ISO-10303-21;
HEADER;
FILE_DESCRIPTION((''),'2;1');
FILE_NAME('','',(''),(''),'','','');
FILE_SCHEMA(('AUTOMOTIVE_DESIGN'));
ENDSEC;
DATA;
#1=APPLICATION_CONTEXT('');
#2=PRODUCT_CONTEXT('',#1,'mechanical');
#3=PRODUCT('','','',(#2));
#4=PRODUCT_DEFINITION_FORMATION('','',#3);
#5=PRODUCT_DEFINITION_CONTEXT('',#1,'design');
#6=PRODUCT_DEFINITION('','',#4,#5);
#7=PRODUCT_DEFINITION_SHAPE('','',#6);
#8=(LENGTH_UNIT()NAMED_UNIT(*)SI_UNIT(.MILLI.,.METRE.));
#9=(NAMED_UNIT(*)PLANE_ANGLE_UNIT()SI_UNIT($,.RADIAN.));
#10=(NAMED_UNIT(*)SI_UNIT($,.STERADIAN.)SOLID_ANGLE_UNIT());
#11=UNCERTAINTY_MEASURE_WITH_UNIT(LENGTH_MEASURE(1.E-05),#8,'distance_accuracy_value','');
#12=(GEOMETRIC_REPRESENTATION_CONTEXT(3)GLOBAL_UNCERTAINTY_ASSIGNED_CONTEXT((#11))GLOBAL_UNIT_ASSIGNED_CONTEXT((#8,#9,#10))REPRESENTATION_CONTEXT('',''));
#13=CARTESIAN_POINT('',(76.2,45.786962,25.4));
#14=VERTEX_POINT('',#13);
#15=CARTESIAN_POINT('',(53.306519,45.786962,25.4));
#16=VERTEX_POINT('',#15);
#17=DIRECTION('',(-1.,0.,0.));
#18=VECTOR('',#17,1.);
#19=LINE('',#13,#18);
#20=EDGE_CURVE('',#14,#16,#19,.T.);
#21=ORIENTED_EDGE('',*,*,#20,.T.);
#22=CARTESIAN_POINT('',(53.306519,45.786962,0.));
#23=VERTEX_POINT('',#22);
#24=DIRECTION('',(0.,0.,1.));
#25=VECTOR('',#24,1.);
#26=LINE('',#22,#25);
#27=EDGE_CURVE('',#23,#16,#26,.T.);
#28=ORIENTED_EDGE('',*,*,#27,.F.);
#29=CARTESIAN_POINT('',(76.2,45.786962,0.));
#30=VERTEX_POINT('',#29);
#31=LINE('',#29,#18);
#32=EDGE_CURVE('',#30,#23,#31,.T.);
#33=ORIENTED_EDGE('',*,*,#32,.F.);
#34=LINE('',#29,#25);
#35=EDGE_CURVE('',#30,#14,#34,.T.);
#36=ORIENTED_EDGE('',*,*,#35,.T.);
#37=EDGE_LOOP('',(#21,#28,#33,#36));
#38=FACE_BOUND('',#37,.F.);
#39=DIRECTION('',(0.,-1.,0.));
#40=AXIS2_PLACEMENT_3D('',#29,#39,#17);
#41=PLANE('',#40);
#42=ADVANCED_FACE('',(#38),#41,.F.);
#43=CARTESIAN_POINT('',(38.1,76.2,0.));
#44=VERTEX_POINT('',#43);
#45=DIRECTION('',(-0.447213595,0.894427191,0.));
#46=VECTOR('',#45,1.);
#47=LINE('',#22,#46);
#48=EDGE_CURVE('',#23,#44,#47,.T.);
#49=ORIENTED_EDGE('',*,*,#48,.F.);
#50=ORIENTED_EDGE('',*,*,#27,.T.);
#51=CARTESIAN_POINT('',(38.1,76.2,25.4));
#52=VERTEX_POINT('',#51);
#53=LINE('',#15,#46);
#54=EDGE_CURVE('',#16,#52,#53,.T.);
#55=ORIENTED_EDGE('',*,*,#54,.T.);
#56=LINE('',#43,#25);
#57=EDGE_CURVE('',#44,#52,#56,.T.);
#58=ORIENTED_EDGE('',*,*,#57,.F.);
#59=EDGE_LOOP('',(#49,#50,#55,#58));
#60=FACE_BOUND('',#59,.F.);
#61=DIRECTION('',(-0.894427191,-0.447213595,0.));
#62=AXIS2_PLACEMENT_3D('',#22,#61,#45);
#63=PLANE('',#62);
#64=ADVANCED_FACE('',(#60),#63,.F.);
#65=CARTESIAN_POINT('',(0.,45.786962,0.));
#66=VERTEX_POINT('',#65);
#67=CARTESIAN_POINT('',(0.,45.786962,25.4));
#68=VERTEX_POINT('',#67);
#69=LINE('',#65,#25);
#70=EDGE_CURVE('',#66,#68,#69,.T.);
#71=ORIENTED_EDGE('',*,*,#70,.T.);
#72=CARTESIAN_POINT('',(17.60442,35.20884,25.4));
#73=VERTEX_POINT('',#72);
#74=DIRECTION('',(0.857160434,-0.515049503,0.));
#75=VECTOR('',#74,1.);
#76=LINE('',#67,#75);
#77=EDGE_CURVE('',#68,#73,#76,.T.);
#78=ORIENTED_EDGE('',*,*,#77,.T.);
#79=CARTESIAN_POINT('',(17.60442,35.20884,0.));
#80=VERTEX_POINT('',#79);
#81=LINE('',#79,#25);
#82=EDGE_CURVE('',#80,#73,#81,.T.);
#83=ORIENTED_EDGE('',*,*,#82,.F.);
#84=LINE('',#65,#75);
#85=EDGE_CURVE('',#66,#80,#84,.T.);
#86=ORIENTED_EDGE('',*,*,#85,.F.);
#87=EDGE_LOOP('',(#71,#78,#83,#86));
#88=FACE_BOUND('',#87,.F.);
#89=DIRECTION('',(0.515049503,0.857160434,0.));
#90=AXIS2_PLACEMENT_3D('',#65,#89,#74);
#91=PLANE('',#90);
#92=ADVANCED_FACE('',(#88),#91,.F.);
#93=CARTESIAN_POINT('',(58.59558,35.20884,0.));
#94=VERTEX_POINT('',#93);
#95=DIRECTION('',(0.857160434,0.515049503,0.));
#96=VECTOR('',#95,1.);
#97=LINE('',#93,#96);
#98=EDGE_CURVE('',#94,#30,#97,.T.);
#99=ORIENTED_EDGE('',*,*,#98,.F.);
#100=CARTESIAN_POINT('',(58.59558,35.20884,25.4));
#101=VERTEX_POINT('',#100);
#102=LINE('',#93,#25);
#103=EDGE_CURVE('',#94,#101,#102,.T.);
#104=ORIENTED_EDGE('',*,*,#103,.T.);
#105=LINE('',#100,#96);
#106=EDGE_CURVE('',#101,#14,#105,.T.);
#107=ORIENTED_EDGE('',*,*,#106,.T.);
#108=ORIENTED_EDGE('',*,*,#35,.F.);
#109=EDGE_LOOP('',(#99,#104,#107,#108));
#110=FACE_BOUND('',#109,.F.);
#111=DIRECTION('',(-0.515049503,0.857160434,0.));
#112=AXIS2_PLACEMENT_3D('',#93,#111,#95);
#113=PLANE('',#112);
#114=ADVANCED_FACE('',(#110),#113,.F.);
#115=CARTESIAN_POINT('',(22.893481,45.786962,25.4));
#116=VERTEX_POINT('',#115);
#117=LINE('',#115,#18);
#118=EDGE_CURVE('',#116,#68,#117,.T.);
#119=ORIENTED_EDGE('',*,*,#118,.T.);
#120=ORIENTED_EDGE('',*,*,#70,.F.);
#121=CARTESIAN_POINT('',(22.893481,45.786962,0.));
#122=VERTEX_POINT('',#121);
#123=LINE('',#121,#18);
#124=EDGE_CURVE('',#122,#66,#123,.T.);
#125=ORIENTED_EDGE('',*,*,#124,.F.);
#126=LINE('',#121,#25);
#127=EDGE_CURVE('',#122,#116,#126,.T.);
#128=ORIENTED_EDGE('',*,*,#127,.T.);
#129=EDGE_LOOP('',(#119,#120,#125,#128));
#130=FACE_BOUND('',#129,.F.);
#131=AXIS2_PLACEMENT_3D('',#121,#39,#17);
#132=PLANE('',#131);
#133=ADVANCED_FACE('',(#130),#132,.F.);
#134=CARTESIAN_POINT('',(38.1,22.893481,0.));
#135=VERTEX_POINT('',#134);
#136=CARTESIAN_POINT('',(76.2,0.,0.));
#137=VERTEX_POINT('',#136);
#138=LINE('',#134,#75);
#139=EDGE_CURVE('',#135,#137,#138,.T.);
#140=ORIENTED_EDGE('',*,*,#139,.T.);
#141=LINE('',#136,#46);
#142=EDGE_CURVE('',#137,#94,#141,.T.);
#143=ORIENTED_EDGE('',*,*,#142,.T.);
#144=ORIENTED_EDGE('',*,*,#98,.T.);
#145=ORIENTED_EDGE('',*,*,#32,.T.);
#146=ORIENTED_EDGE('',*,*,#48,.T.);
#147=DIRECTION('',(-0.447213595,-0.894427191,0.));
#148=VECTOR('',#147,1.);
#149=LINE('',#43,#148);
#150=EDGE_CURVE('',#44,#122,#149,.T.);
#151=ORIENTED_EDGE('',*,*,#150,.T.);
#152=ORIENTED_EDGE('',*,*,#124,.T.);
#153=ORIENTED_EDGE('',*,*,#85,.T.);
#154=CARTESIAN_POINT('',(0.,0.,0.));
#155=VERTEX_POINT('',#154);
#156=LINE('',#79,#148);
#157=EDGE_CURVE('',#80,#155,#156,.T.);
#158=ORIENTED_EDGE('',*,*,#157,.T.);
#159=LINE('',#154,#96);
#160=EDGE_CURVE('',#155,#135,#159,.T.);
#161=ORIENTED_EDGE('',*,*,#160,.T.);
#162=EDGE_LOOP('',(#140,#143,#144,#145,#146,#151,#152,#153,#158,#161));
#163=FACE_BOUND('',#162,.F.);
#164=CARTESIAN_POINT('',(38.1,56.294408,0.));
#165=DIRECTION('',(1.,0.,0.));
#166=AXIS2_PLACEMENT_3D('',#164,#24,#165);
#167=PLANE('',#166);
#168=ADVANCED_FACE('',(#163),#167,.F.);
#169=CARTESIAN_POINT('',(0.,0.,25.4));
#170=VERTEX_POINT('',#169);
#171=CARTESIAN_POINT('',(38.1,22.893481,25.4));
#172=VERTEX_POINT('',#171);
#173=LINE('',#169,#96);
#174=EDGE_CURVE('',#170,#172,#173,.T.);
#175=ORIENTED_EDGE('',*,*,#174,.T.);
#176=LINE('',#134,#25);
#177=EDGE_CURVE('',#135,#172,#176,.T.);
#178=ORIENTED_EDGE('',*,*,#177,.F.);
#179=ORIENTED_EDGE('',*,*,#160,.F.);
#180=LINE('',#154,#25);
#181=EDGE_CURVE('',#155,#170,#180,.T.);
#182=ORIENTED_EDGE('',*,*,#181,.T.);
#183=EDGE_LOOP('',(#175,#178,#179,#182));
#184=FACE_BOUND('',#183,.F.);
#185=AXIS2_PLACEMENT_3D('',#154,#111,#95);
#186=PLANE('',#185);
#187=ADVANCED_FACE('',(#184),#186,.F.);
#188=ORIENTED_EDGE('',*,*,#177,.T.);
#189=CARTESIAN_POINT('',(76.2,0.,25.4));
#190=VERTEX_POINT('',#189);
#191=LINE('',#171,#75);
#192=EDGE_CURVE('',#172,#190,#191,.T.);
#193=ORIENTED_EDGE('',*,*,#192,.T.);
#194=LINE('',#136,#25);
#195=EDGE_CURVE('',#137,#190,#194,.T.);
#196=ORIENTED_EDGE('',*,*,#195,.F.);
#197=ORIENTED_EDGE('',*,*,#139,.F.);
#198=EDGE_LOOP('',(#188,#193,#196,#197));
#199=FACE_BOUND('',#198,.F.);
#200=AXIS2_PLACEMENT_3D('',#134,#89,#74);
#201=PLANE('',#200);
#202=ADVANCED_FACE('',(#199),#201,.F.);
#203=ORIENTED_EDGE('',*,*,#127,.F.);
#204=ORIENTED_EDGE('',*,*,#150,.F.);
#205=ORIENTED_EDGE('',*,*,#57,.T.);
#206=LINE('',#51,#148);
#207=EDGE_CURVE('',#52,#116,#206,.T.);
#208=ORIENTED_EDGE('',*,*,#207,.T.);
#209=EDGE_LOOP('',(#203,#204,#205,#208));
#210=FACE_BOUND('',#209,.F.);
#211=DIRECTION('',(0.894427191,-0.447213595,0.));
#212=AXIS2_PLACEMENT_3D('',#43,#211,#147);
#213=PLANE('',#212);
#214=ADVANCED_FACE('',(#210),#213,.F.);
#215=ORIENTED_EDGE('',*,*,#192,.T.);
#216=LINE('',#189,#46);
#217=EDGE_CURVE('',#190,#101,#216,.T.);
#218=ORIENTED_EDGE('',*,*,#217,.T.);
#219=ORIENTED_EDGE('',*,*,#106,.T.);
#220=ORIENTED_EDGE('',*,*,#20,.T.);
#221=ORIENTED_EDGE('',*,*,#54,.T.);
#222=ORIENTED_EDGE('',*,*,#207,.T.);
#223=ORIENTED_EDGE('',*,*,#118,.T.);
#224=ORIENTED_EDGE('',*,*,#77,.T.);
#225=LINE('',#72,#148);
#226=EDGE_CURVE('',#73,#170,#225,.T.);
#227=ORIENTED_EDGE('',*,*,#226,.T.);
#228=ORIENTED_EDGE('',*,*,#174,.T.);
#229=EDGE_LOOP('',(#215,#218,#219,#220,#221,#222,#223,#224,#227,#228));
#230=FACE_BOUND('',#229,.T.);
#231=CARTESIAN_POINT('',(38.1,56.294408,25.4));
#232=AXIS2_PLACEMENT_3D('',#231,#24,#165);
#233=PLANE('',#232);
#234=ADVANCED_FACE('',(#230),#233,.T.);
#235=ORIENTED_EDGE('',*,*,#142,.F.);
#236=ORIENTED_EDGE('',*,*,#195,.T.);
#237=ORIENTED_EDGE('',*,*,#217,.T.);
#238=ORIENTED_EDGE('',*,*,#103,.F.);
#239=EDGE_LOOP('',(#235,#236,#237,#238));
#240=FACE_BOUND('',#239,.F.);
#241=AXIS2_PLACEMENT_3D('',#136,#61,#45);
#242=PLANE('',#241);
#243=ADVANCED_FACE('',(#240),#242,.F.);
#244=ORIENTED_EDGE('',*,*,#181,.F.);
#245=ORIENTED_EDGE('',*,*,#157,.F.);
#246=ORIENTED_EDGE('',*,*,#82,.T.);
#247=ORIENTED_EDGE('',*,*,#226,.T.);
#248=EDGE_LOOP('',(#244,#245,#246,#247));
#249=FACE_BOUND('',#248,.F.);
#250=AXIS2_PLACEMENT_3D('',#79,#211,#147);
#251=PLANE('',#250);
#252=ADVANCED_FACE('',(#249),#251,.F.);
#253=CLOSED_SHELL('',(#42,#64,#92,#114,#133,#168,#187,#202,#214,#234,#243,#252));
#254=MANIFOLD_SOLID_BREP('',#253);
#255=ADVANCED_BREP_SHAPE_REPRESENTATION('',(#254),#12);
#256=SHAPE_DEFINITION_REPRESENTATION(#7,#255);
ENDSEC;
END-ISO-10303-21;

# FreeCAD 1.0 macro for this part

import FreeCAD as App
import Part
import Sketcher

V = App.Vector
Q = App.Units.Quantity


def add_polygon(sketch, points):
    """Adds a closed chain of lines whose ends are joined by coincident constraints."""
    first, n = sketch.GeometryCount, len(points)
    for a, b in zip(points, points[1:] + points[:1]):
        sketch.addGeometry(Part.LineSegment(App.Vector(*a, 0), App.Vector(*b, 0)), False)
    for i in range(n):
        sketch.addConstraint(Sketcher.Constraint("Coincident", first + i, 2, first + (i + 1) % n, 1))

doc = App.newDocument("Part")
body = doc.addObject("PartDesign::Body", "Body")

sketch1 = body.newObject("Sketcher::SketchObject", "Sketch")
sketch1.AttachmentSupport = (doc.getObject("XY_Plane"), [""])
sketch1.MapMode = "FlatFace"
add_polygon(sketch1, [(38, 76), (23, 46), (0, 46), (18, 35), (0, 0), (38, 23), (76, 0), (59, 35), (76, 46), (53, 46)])
sketch1.addConstraint(Sketcher.Constraint("Horizontal", 1))
sketch1.addConstraint(Sketcher.Constraint("Horizontal", 8))
sketch1.addConstraint(Sketcher.Constraint("Coincident", 3, 2, -1, 1))
sketch1.addConstraint(Sketcher.Constraint("PointOnObject", 1, 2, -2))
sketch1.addConstraint(Sketcher.Constraint("PointOnObject", 5, 2, -1))
sketch1.addConstraint(Sketcher.Constraint("Parallel", 0, 3))
sketch1.addConstraint(Sketcher.Constraint("Parallel", 2, 5))
sketch1.addConstraint(Sketcher.Constraint("Parallel", 4, 7))
sketch1.addConstraint(Sketcher.Constraint("Parallel", 6, 9))
sketch1.addConstraint(Sketcher.Constraint("Horizontal", 2, 2, 6, 2))
sketch1.addConstraint(Sketcher.Constraint("Horizontal", 1, 2, 7, 2))
sketch1.addConstraint(Sketcher.Constraint("Vertical", 5, 2, 7, 2))
sketch1.addConstraint(Sketcher.Constraint("Vertical", 4, 2, 9, 2))
sketch1.addConstraint(Sketcher.Constraint("Equal", 1, 8))
sketch1.addConstraint(Sketcher.Constraint("DistanceX", -1, 1, 5, 2, Q("3 in")))
sketch1.addConstraint(Sketcher.Constraint("DistanceY", -1, 1, 9, 2, Q("3 in")))
sketch1.addConstraint(Sketcher.Constraint("DistanceX", 1, 2, 1, 1, 22.893481))
sketch1.addConstraint(Sketcher.Constraint("DistanceX", 0, 2, 6, 2, 35.702099))
sketch1.addConstraint(Sketcher.Constraint("Distance", 0, 34.00281))
pad1 = body.newObject("PartDesign::Pad", "Pad")
pad1.Profile = sketch1
pad1.Length = Q("1 in")

doc.recompute()
